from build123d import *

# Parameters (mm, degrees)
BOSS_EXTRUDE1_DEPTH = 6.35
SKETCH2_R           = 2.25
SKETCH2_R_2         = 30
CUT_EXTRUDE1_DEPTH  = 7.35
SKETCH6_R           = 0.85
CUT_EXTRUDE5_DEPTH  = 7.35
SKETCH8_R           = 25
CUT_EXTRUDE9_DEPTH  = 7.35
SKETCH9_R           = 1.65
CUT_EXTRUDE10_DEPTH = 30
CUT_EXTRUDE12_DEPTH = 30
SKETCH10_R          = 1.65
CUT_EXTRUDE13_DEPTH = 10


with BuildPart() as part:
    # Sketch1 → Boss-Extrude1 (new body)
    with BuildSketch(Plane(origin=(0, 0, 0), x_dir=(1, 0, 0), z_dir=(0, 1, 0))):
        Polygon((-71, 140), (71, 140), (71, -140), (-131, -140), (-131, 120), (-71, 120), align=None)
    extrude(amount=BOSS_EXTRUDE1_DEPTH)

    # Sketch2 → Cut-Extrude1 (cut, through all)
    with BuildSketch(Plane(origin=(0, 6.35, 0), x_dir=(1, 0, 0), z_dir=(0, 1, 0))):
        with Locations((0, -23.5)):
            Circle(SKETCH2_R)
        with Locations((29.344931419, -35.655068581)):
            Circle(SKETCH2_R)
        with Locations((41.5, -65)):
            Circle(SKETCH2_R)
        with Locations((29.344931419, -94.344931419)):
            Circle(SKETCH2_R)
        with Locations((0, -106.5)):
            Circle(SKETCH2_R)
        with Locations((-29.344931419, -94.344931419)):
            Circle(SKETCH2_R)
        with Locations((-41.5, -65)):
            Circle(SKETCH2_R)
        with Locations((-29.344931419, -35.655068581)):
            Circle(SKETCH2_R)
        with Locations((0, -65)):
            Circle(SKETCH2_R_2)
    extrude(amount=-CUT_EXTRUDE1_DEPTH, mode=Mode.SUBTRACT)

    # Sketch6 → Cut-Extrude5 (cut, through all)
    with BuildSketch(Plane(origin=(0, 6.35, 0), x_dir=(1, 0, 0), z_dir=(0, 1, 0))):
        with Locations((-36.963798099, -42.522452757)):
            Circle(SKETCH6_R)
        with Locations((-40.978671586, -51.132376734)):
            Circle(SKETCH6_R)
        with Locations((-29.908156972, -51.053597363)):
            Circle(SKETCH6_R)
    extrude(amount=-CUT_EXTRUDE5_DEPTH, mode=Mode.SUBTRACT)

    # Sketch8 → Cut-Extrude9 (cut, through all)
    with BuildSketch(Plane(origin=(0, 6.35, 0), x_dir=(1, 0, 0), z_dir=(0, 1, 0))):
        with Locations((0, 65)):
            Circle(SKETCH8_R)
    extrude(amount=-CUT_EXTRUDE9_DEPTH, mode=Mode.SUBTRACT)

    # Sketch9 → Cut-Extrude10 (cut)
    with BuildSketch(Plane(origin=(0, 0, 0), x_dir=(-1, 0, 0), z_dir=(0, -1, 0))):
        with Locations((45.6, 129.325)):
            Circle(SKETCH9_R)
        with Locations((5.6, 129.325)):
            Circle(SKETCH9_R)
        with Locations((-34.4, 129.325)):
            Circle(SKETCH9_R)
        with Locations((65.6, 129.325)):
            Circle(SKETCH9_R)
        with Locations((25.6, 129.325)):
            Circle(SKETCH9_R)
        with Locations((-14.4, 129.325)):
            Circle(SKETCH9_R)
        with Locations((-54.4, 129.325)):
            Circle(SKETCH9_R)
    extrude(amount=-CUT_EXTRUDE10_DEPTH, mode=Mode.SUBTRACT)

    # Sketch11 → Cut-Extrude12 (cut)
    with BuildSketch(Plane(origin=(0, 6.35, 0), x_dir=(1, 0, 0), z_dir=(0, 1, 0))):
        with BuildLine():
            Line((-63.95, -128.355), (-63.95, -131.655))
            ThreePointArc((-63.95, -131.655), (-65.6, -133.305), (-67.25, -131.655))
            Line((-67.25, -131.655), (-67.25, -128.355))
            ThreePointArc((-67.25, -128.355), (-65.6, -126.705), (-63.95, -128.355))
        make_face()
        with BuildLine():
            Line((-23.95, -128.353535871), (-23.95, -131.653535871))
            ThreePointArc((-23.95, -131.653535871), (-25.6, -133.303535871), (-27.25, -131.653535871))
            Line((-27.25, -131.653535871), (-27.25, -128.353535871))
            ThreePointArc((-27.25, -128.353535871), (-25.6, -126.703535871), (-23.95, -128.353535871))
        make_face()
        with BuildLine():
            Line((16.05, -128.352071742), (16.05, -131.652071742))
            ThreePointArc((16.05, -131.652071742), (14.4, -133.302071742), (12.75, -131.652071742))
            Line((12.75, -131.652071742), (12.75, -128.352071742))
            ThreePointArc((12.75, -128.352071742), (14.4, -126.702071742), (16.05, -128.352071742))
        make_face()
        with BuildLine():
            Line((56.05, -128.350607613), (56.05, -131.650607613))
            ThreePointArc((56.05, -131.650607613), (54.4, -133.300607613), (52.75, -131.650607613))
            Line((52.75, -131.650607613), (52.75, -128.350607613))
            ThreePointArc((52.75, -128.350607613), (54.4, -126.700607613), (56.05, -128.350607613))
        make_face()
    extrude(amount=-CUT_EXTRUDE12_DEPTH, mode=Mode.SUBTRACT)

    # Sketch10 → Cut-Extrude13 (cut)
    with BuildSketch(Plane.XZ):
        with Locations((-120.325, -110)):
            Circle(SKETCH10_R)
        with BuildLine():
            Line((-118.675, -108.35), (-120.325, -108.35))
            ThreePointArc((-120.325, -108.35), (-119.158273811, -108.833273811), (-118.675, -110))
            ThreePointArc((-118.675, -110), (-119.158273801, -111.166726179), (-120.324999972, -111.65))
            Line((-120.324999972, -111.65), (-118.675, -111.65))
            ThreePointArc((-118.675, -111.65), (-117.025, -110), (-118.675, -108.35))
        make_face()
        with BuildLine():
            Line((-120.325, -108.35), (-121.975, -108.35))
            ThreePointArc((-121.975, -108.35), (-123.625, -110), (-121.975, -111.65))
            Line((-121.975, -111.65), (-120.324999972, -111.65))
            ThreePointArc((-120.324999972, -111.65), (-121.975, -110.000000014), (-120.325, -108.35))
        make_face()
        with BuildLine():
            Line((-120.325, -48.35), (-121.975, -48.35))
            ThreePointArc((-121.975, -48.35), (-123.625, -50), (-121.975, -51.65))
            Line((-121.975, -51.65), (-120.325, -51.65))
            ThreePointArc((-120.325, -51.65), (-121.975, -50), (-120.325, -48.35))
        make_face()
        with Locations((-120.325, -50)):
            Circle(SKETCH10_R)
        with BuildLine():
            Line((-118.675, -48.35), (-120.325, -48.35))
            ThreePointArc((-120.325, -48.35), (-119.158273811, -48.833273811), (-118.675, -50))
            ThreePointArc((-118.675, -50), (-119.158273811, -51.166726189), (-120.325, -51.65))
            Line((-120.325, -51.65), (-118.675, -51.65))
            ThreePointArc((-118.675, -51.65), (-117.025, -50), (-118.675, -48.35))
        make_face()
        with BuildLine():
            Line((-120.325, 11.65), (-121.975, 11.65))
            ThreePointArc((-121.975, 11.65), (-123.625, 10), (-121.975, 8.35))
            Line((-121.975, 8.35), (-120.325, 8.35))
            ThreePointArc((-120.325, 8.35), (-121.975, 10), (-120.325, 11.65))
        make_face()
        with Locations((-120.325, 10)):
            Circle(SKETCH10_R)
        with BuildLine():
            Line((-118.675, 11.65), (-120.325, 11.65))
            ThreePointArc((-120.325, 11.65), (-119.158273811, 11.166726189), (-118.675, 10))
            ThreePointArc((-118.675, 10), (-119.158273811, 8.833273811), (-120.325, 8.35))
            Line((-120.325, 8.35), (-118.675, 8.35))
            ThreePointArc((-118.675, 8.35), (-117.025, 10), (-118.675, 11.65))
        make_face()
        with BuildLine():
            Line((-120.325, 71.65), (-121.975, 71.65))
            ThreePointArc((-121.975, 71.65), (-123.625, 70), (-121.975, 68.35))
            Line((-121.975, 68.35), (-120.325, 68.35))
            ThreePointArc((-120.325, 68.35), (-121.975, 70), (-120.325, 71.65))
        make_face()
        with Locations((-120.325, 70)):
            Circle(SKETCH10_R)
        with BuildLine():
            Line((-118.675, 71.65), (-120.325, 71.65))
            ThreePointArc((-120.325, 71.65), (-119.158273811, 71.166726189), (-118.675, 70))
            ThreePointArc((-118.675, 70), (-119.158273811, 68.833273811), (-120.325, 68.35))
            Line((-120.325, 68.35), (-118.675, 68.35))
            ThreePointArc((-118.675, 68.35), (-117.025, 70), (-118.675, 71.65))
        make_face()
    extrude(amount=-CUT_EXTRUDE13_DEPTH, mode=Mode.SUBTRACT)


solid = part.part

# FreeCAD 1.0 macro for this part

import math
import FreeCAD as App
import Part
import Sketcher

V = App.Vector
Q = App.Units.Quantity


def add_polygon(sketch, points):
    """Adds a closed chain of lines whose ends are joined by coincident constraints."""
    first, n = sketch.GeometryCount, len(points)
    for a, b in zip(points, points[1:] + points[:1]):
        sketch.addGeometry(Part.LineSegment(App.Vector(*a, 0), App.Vector(*b, 0)), False)
    for i in range(n):
        sketch.addConstraint(Sketcher.Constraint("Coincident", first + i, 2, first + (i + 1) % n, 1))

doc = App.newDocument("Part")
params = doc.addObject("Spreadsheet::Sheet", "Params")
for row, (alias, value) in enumerate([
    ("sketch1_width", "142 mm"),
    ("sketch1_width2", "60 mm"),
    ("sketch1_height", "20 mm"),
    ("sketch1_height2", "260 mm"),
    ("pad1_length", "6.35 mm"),
    ("sketch2_diameter", "60 mm"),
    ("sketch2_diameter2", "4.5 mm"),
    ("sketch3_diameter", "1.7 mm"),
    ("sketch4_diameter", "50 mm"),
    ("sketch5_diameter", "3.3 mm"),
    ("pocket4_length", "30 mm"),
    ("sketch6_radius", "1.65 mm"),
    ("sketch6_height", "3.3 mm"),
    ("pocket5_length", "30 mm"),
    ("sketch7_radius", "1.65 mm"),
    ("sketch7_width", "3.3 mm"),
    ("pocket6_length", "10 mm"),
], start=1):
    params.set(f"A{row}", alias)
    params.set(f"B{row}", "=" + value)
    params.setAlias(f"B{row}", alias)

body = doc.addObject("PartDesign::Body", "Body")

# Sketch on XZ plane
sketch1 = body.newObject("Sketcher::SketchObject", "Sketch")
sketch1.AttachmentSupport = (doc.getObject("XZ_Plane"), [""])
sketch1.MapMode = "FlatFace"
add_polygon(sketch1, [(71, -140), (-71, -140), (-71, -120), (-131, -120), (-131, 140), (71, 140)])  # lines 0-5
sketch1.addConstraint([
    Sketcher.Constraint("Horizontal", 0),
    Sketcher.Constraint("Vertical", 1),
    Sketcher.Constraint("Horizontal", 2),
    Sketcher.Constraint("Vertical", 3),
    Sketcher.Constraint("Horizontal", 4),
    Sketcher.Constraint("Vertical", 5),
    Sketcher.Constraint("Symmetric", 0, 2, 4, 2, -1, 1),
    Sketcher.Constraint("DistanceX", 0, 2, 0, 1, Q("142 mm")),
    Sketcher.Constraint("DistanceX", 2, 2, 2, 1, Q("60 mm")),
    Sketcher.Constraint("DistanceY", 1, 1, 1, 2, Q("20 mm")),
    Sketcher.Constraint("DistanceY", 3, 1, 3, 2, Q("260 mm")),
])
sketch1.setExpression("Constraints[13]", "Params.sketch1_width")
sketch1.setExpression("Constraints[14]", "Params.sketch1_width2")
sketch1.setExpression("Constraints[15]", "Params.sketch1_height")
sketch1.setExpression("Constraints[16]", "Params.sketch1_height2")
pad1 = body.newObject("PartDesign::Pad", "Pad")
pad1.Profile = sketch1
pad1.setExpression("Length", "Params.pad1_length")
pad1.Reversed = True

# Sketch on XZ plane
sketch2 = body.newObject("Sketcher::SketchObject", "Sketch001")
sketch2.AttachmentSupport = (doc.getObject("XZ_Plane"), [""])
sketch2.MapMode = "FlatFace"
sketch2.AttachmentOffset = App.Placement(V(0, 0, -6.35), App.Rotation())
sketch2.addGeometry([
    Part.Circle(V(0, 23.5, 0), V(0, 0, 1), 2.2),  # 0
    Part.Circle(V(29.3, 35.7, 0), V(0, 0, 1), 2.2),  # 1
    Part.Circle(V(41.5, 65, 0), V(0, 0, 1), 2.2),  # 2
    Part.Circle(V(29.3, 94.3, 0), V(0, 0, 1), 2.2),  # 3
    Part.Circle(V(0, 106.5, 0), V(0, 0, 1), 2.2),  # 4
    Part.Circle(V(-29.3, 94.3, 0), V(0, 0, 1), 2.2),  # 5
    Part.Circle(V(-41.5, 65, 0), V(0, 0, 1), 2.2),  # 6
    Part.Circle(V(-29.3, 35.7, 0), V(0, 0, 1), 2.2),  # 7
    Part.Circle(V(0, 65, 0), V(0, 0, 1), 30),  # 8
], False)
sketch2.addConstraint([
    Sketcher.Constraint("Equal", 0, 1),
    Sketcher.Constraint("Equal", 1, 2),
    Sketcher.Constraint("Equal", 2, 3),
    Sketcher.Constraint("Equal", 3, 4),
    Sketcher.Constraint("Equal", 4, 5),
    Sketcher.Constraint("Equal", 5, 6),
    Sketcher.Constraint("Equal", 6, 7),
    Sketcher.Constraint("Symmetric", 3, 3, 5, 3, -2),
    Sketcher.Constraint("Symmetric", 2, 3, 6, 3, -2),
    Sketcher.Constraint("Symmetric", 1, 3, 7, 3, -2),
    Sketcher.Constraint("PointOnObject", 0, 3, -2),
    Sketcher.Constraint("PointOnObject", 4, 3, -2),
    Sketcher.Constraint("PointOnObject", 8, 3, -2),
    Sketcher.Constraint("Horizontal", 6, 3, 8, 3),
    Sketcher.Constraint("Vertical", 1, 3, 3, 3),
    Sketcher.Constraint("Diameter", 8, Q("60 mm")),
    Sketcher.Constraint("Diameter", 0, Q("4.5 mm")),
    Sketcher.Constraint("DistanceY", -1, 1, 2, 3, Q("65 mm")),
    Sketcher.Constraint("DistanceY", 0, 3, 4, 3, Q("83 mm")),
    Sketcher.Constraint("DistanceY", -1, 1, 0, 3, Q("23.5 mm")),
    Sketcher.Constraint("DistanceX", -1, 1, 2, 3, Q("41.5 mm")),
    Sketcher.Constraint("DistanceX", -1, 1, 1, 3, Q("29.344931 mm")),
    Sketcher.Constraint("DistanceY", -1, 1, 1, 3, Q("35.655069 mm")),
    Sketcher.Constraint("DistanceY", -1, 1, 3, 3, Q("94.344931 mm")),
])
sketch2.setExpression("Constraints[15]", "Params.sketch2_diameter")
sketch2.setExpression("Constraints[16]", "Params.sketch2_diameter2")
pocket1 = body.newObject("PartDesign::Pocket", "Pocket")
pocket1.Profile = sketch2
pocket1.Type = "ThroughAll"
pocket1.Reversed = True

# Sketch on XZ plane
sketch3 = body.newObject("Sketcher::SketchObject", "Sketch002")
sketch3.AttachmentSupport = (doc.getObject("XZ_Plane"), [""])
sketch3.MapMode = "FlatFace"
sketch3.AttachmentOffset = App.Placement(V(0, 0, -6.35), App.Rotation())
sketch3.addGeometry([
    Part.Circle(V(-37, 42.5, 0), V(0, 0, 1), 0.8),
    Part.Circle(V(-41, 51.1, 0), V(0, 0, 1), 0.8),
    Part.Circle(V(-29.9, 51.1, 0), V(0, 0, 1), 0.8),
], False)
sketch3.addConstraint([
    Sketcher.Constraint("Equal", 0, 1),
    Sketcher.Constraint("Equal", 1, 2),
    Sketcher.Constraint("Diameter", 0, Q("1.7 mm")),
    Sketcher.Constraint("DistanceX", 0, 3, -1, 1, Q("36.963798 mm")),
    Sketcher.Constraint("DistanceX", 1, 3, -1, 1, Q("40.978672 mm")),
    Sketcher.Constraint("DistanceX", 0, 3, 2, 3, Q("7.055641 mm")),
    Sketcher.Constraint("DistanceY", 2, 3, 1, 3, Q("0.078779 mm")),
    Sketcher.Constraint("DistanceY", -1, 1, 0, 3, Q("42.522453 mm")),
    Sketcher.Constraint("DistanceY", -1, 1, 1, 3, Q("51.132377 mm")),
])
sketch3.setExpression("Constraints[2]", "Params.sketch3_diameter")
pocket2 = body.newObject("PartDesign::Pocket", "Pocket001")
pocket2.Profile = sketch3
pocket2.Type = "ThroughAll"
pocket2.Reversed = True

# Sketch on XZ plane
sketch4 = body.newObject("Sketcher::SketchObject", "Sketch003")
sketch4.AttachmentSupport = (doc.getObject("XZ_Plane"), [""])
sketch4.MapMode = "FlatFace"
sketch4.AttachmentOffset = App.Placement(V(0, 0, -6.35), App.Rotation())
sketch4.addGeometry(Part.Circle(V(0, -65, 0), V(0, 0, 1), 25), False)
sketch4.addConstraint([
    Sketcher.Constraint("PointOnObject", 0, 3, -2),
    Sketcher.Constraint("Diameter", 0, Q("50 mm")),
    Sketcher.Constraint("DistanceY", 0, 3, -1, 1, Q("65 mm")),
])
sketch4.setExpression("Constraints[1]", "Params.sketch4_diameter")
pocket3 = body.newObject("PartDesign::Pocket", "Pocket002")
pocket3.Profile = sketch4
pocket3.Type = "ThroughAll"
pocket3.Reversed = True

# Sketch on XZ plane
sketch5 = body.newObject("Sketcher::SketchObject", "Sketch004")
sketch5.AttachmentSupport = (doc.getObject("XZ_Plane"), [""])
sketch5.MapMode = "FlatFace"
sketch5.addGeometry([
    Part.Circle(V(-45.6, -129.3, 0), V(0, 0, 1), 1.6),  # 0
    Part.Circle(V(-5.6, -129.3, 0), V(0, 0, 1), 1.6),  # 1
    Part.Circle(V(34.4, -129.3, 0), V(0, 0, 1), 1.6),  # 2
    Part.Circle(V(-65.6, -129.3, 0), V(0, 0, 1), 1.6),  # 3
    Part.Circle(V(-25.6, -129.3, 0), V(0, 0, 1), 1.6),  # 4
    Part.Circle(V(14.4, -129.3, 0), V(0, 0, 1), 1.6),  # 5
    Part.Circle(V(54.4, -129.3, 0), V(0, 0, 1), 1.6),  # 6
], False)
sketch5.addConstraint([
    Sketcher.Constraint("Equal", 0, 1),
    Sketcher.Constraint("Equal", 1, 2),
    Sketcher.Constraint("Equal", 2, 3),
    Sketcher.Constraint("Equal", 3, 4),
    Sketcher.Constraint("Equal", 4, 5),
    Sketcher.Constraint("Equal", 5, 6),
    Sketcher.Constraint("Horizontal", 0, 3, 1, 3),
    Sketcher.Constraint("Horizontal", 1, 3, 2, 3),
    Sketcher.Constraint("Horizontal", 2, 3, 3, 3),
    Sketcher.Constraint("Horizontal", 3, 3, 4, 3),
    Sketcher.Constraint("Horizontal", 4, 3, 5, 3),
    Sketcher.Constraint("Horizontal", 5, 3, 6, 3),
    Sketcher.Constraint("Diameter", 0, Q("3.3 mm")),
    Sketcher.Constraint("DistanceX", 0, 3, 1, 3, Q("40 mm")),
    Sketcher.Constraint("DistanceX", 1, 3, 2, 3, Q("40 mm")),
    Sketcher.Constraint("DistanceX", 3, 3, 0, 3, Q("20 mm")),
    Sketcher.Constraint("DistanceX", 0, 3, 4, 3, Q("20 mm")),
    Sketcher.Constraint("DistanceX", 1, 3, 5, 3, Q("20 mm")),
    Sketcher.Constraint("DistanceX", 2, 3, 6, 3, Q("20 mm")),
    Sketcher.Constraint("DistanceX", 0, 3, -1, 1, Q("45.6 mm")),
    Sketcher.Constraint("DistanceY", 0, 3, -1, 1, Q("129.325 mm")),
])
sketch5.setExpression("Constraints[12]", "Params.sketch5_diameter")
pocket4 = body.newObject("PartDesign::Pocket", "Pocket003")
pocket4.Profile = sketch5
pocket4.setExpression("Length", "Params.pocket4_length")

# Sketch on XZ plane
sketch6 = body.newObject("Sketcher::SketchObject", "Sketch005")
sketch6.AttachmentSupport = (doc.getObject("XZ_Plane"), [""])
sketch6.MapMode = "FlatFace"
sketch6.AttachmentOffset = App.Placement(V(0, 0, -6.35), App.Rotation())
sketch6.addGeometry([
    Part.LineSegment(V(-64, 131.7, 0), V(-64, 128.4, 0)),  # 0
    Part.ArcOfCircle(Part.Circle(V(-65.6, 128.4, 0), V(0, 0, 1), 1.6), math.radians(180), math.radians(360)),  # 1
    Part.LineSegment(V(-67.2, 128.4, 0), V(-67.2, 131.7, 0)),  # 2
    Part.ArcOfCircle(Part.Circle(V(-65.6, 131.7, 0), V(0, 0, 1), 1.6), math.radians(0), math.radians(180)),  # 3
    Part.LineSegment(V(-23.9, 131.7, 0), V(-23.9, 128.4, 0)),  # 4
    Part.ArcOfCircle(Part.Circle(V(-25.6, 128.4, 0), V(0, 0, 1), 1.6), math.radians(180), math.radians(360)),  # 5
    Part.LineSegment(V(-27.2, 128.4, 0), V(-27.2, 131.7, 0)),  # 6
    Part.ArcOfCircle(Part.Circle(V(-25.6, 131.7, 0), V(0, 0, 1), 1.6), math.radians(0), math.radians(180)),  # 7
    Part.LineSegment(V(16.1, 131.7, 0), V(16.1, 128.4, 0)),  # 8
    Part.ArcOfCircle(Part.Circle(V(14.4, 128.4, 0), V(0, 0, 1), 1.6), math.radians(180), math.radians(360)),  # 9
    Part.LineSegment(V(12.8, 128.4, 0), V(12.8, 131.7, 0)),  # 10
    Part.ArcOfCircle(Part.Circle(V(14.4, 131.7, 0), V(0, 0, 1), 1.6), math.radians(0), math.radians(180)),  # 11
    Part.LineSegment(V(56, 131.7, 0), V(56, 128.4, 0)),  # 12
    Part.ArcOfCircle(Part.Circle(V(54.4, 128.4, 0), V(0, 0, 1), 1.6), math.radians(180), math.radians(360)),  # 13
    Part.LineSegment(V(52.8, 128.4, 0), V(52.8, 131.7, 0)),  # 14
    Part.ArcOfCircle(Part.Circle(V(54.4, 131.7, 0), V(0, 0, 1), 1.6), math.radians(0), math.radians(180)),  # 15
], False)
sketch6.addConstraint([
    Sketcher.Constraint("Tangent", 0, 2, 1, 2),
    Sketcher.Constraint("Tangent", 1, 1, 2, 1),
    Sketcher.Constraint("Tangent", 2, 2, 3, 2),
    Sketcher.Constraint("Tangent", 3, 1, 0, 1),
    Sketcher.Constraint("Tangent", 4, 2, 5, 2),
    Sketcher.Constraint("Tangent", 5, 1, 6, 1),
    Sketcher.Constraint("Tangent", 6, 2, 7, 2),
    Sketcher.Constraint("Tangent", 7, 1, 4, 1),
    Sketcher.Constraint("Tangent", 8, 2, 9, 2),
    Sketcher.Constraint("Tangent", 9, 1, 10, 1),
    Sketcher.Constraint("Tangent", 10, 2, 11, 2),
    Sketcher.Constraint("Tangent", 11, 1, 8, 1),
    Sketcher.Constraint("Tangent", 12, 2, 13, 2),
    Sketcher.Constraint("Tangent", 13, 1, 14, 1),
    Sketcher.Constraint("Tangent", 14, 2, 15, 2),
    Sketcher.Constraint("Tangent", 15, 1, 12, 1),
    Sketcher.Constraint("Vertical", 0),
    Sketcher.Constraint("Vertical", 2),
    Sketcher.Constraint("Vertical", 4),
    Sketcher.Constraint("Vertical", 6),
    Sketcher.Constraint("Vertical", 8),
    Sketcher.Constraint("Vertical", 10),
    Sketcher.Constraint("Vertical", 12),
    Sketcher.Constraint("Vertical", 14),
    Sketcher.Constraint("Equal", 3, 5),
    Sketcher.Constraint("Equal", 7, 9),
    Sketcher.Constraint("Equal", 11, 13),
    Sketcher.Constraint("Equal", 2, 4),
    Sketcher.Constraint("Equal", 6, 8),
    Sketcher.Constraint("Equal", 10, 12),
    Sketcher.Constraint("Radius", 1, Q("1.65 mm")),
    Sketcher.Constraint("DistanceY", 0, 2, 0, 1, Q("3.3 mm")),
    Sketcher.Constraint("DistanceX", 1, 3, 5, 3, Q("40 mm")),
    Sketcher.Constraint("DistanceX", 5, 3, 9, 3, Q("40 mm")),
    Sketcher.Constraint("DistanceX", 9, 3, 13, 3, Q("40 mm")),
    Sketcher.Constraint("DistanceX", 1, 3, -1, 1, Q("65.6 mm")),
    Sketcher.Constraint("DistanceY", -1, 1, 1, 3, Q("128.355 mm")),
    Sketcher.Constraint("DistanceY", -1, 1, 9, 3, Q("128.352072 mm")),
    Sketcher.Constraint("DistanceY", 13, 3, 5, 3, Q("0.002928 mm")),
    Sketcher.Constraint("DistanceY", -1, 1, 5, 3, Q("128.353536 mm")),
])
sketch6.setExpression("Constraints[30]", "Params.sketch6_radius")
sketch6.setExpression("Constraints[31]", "Params.sketch6_height")
pocket5 = body.newObject("PartDesign::Pocket", "Pocket004")
pocket5.Profile = sketch6
pocket5.setExpression("Length", "Params.pocket5_length")
pocket5.Reversed = True

# Sketch on XZ plane
sketch7 = body.newObject("Sketcher::SketchObject", "Sketch006")
sketch7.AttachmentSupport = (doc.getObject("XZ_Plane"), [""])
sketch7.MapMode = "FlatFace"
sketch7.addGeometry([
    Part.ArcOfCircle(Part.Circle(V(-118.7, -110, 0), V(0, 0, 1), 1.6), math.radians(-90), math.radians(90)),  # 0
    Part.LineSegment(V(-118.7, -108.3, 0), V(-122, -108.3, 0)),  # 1
    Part.ArcOfCircle(Part.Circle(V(-122, -110, 0), V(0, 0, 1), 1.6), math.radians(90), math.radians(270)),  # 2
    Part.LineSegment(V(-122, -111.7, 0), V(-118.7, -111.7, 0)),  # 3
    Part.ArcOfCircle(Part.Circle(V(-122, -50, 0), V(0, 0, 1), 1.6), math.radians(90), math.radians(270)),  # 4
    Part.LineSegment(V(-122, -51.6, 0), V(-118.7, -51.6, 0)),  # 5
    Part.ArcOfCircle(Part.Circle(V(-118.7, -50, 0), V(0, 0, 1), 1.6), math.radians(-90), math.radians(90)),  # 6
    Part.LineSegment(V(-118.7, -48.4, 0), V(-122, -48.4, 0)),  # 7
    Part.ArcOfCircle(Part.Circle(V(-122, 10, 0), V(0, 0, 1), 1.6), math.radians(90), math.radians(270)),  # 8
    Part.LineSegment(V(-122, 8.3, 0), V(-118.7, 8.3, 0)),  # 9
    Part.ArcOfCircle(Part.Circle(V(-118.7, 10, 0), V(0, 0, 1), 1.6), math.radians(-90), math.radians(90)),  # 10
    Part.LineSegment(V(-118.7, 11.7, 0), V(-122, 11.7, 0)),  # 11
    Part.ArcOfCircle(Part.Circle(V(-122, 70, 0), V(0, 0, 1), 1.6), math.radians(90), math.radians(270)),  # 12
    Part.LineSegment(V(-122, 68.3, 0), V(-118.7, 68.3, 0)),  # 13
    Part.ArcOfCircle(Part.Circle(V(-118.7, 70, 0), V(0, 0, 1), 1.6), math.radians(-90), math.radians(90)),  # 14
    Part.LineSegment(V(-118.7, 71.7, 0), V(-122, 71.7, 0)),  # 15
], False)
sketch7.addConstraint([
    Sketcher.Constraint("Tangent", 0, 2, 1, 1),
    Sketcher.Constraint("Tangent", 1, 2, 2, 1),
    Sketcher.Constraint("Tangent", 2, 2, 3, 1),
    Sketcher.Constraint("Tangent", 3, 2, 0, 1),
    Sketcher.Constraint("Tangent", 4, 2, 5, 1),
    Sketcher.Constraint("Tangent", 5, 2, 6, 1),
    Sketcher.Constraint("Tangent", 6, 2, 7, 1),
    Sketcher.Constraint("Tangent", 7, 2, 4, 1),
    Sketcher.Constraint("Tangent", 8, 2, 9, 1),
    Sketcher.Constraint("Tangent", 9, 2, 10, 1),
    Sketcher.Constraint("Tangent", 10, 2, 11, 1),
    Sketcher.Constraint("Tangent", 11, 2, 8, 1),
    Sketcher.Constraint("Tangent", 12, 2, 13, 1),
    Sketcher.Constraint("Tangent", 13, 2, 14, 1),
    Sketcher.Constraint("Tangent", 14, 2, 15, 1),
    Sketcher.Constraint("Tangent", 15, 2, 12, 1),
    Sketcher.Constraint("Horizontal", 1),
    Sketcher.Constraint("Horizontal", 3),
    Sketcher.Constraint("Horizontal", 5),
    Sketcher.Constraint("Horizontal", 7),
    Sketcher.Constraint("Horizontal", 9),
    Sketcher.Constraint("Horizontal", 11),
    Sketcher.Constraint("Horizontal", 13),
    Sketcher.Constraint("Horizontal", 15),
    Sketcher.Constraint("Equal", 2, 4),
    Sketcher.Constraint("Equal", 6, 8),
    Sketcher.Constraint("Equal", 10, 12),
    Sketcher.Constraint("Vertical", 2, 3, 4, 3),
    Sketcher.Constraint("Vertical", 0, 3, 6, 3),
    Sketcher.Constraint("Vertical", 4, 3, 8, 3),
    Sketcher.Constraint("Vertical", 6, 3, 10, 3),
    Sketcher.Constraint("Vertical", 8, 3, 12, 3),
    Sketcher.Constraint("Vertical", 10, 3, 14, 3),
    Sketcher.Constraint("Radius", 0, Q("1.65 mm")),
    Sketcher.Constraint("DistanceX", 1, 2, 1, 1, Q("3.3 mm")),
    Sketcher.Constraint("DistanceY", 0, 3, -1, 1, Q("110 mm")),
    Sketcher.Constraint("DistanceY", 4, 3, -1, 1, Q("50 mm")),
    Sketcher.Constraint("DistanceY", -1, 1, 8, 3, Q("10 mm")),
    Sketcher.Constraint("DistanceY", -1, 1, 12, 3, Q("70 mm")),
    Sketcher.Constraint("DistanceX", 0, 3, -1, 1, Q("118.675 mm")),
])
sketch7.setExpression("Constraints[33]", "Params.sketch7_radius")
sketch7.setExpression("Constraints[34]", "Params.sketch7_width")
pocket6 = body.newObject("PartDesign::Pocket", "Pocket005")
pocket6.Profile = sketch7
pocket6.setExpression("Length", "Params.pocket6_length")

doc.recompute()
